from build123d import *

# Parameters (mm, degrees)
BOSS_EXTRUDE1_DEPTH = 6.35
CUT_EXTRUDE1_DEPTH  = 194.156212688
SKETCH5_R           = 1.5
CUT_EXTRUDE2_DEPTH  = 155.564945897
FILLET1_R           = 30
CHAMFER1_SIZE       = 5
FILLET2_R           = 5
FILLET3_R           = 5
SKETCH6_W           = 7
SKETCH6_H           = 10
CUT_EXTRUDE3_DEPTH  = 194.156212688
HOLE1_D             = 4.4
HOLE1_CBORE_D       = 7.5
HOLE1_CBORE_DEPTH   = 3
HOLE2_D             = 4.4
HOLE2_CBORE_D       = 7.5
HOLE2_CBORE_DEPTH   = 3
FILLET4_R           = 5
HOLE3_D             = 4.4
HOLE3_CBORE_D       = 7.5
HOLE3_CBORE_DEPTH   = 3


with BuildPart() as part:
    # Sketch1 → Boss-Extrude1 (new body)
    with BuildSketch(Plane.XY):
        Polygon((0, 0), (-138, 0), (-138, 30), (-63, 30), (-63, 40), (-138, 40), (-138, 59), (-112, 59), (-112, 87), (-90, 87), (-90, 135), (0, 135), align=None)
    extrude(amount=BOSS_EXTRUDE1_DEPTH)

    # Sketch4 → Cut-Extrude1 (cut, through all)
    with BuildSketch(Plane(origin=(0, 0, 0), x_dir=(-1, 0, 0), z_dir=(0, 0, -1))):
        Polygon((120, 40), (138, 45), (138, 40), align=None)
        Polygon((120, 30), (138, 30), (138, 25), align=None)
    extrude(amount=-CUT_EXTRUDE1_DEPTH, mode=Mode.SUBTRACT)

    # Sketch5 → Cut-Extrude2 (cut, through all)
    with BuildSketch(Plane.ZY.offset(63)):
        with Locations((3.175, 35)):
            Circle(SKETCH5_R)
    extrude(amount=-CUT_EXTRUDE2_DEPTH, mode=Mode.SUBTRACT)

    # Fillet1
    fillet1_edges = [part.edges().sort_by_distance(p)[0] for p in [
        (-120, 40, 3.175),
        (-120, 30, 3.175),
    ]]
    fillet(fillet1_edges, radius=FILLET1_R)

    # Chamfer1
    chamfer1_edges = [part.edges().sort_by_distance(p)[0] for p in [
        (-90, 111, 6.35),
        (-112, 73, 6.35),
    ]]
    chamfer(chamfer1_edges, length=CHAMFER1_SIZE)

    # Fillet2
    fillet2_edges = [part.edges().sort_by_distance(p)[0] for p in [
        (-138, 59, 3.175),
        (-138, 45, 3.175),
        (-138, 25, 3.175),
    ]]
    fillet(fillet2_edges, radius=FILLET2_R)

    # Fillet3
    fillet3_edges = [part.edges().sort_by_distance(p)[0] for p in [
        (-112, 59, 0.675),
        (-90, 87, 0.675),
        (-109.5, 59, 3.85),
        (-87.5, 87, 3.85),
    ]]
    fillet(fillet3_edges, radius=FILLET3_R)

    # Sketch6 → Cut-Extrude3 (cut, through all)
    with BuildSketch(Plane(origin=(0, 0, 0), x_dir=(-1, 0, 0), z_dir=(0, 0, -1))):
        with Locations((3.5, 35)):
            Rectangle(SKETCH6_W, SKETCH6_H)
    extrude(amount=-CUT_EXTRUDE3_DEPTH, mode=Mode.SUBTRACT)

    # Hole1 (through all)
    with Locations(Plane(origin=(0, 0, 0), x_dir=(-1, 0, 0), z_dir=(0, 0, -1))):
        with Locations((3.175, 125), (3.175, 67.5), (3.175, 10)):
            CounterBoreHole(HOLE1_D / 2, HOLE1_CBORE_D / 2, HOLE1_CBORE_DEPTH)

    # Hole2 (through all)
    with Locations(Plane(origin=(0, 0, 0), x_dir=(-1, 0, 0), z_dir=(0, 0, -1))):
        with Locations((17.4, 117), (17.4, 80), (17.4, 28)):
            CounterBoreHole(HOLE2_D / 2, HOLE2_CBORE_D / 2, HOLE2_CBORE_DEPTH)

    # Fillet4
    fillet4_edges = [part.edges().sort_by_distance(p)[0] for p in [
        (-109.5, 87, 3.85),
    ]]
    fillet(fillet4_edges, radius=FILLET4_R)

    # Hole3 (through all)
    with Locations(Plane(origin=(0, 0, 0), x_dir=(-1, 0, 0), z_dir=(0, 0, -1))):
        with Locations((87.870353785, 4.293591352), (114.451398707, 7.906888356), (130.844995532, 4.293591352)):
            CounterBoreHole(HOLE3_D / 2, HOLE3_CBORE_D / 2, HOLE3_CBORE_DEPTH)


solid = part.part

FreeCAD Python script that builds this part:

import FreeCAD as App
import Part
import Sketcher
Q = App.Units.Quantity


def edges_at(feature, points):
    """Names of the edges that pass closest to the given points."""
    edges = feature.Shape.Edges
    near = lambda p: min(range(len(edges)), key=lambda i: edges[i].distToShape(Part.Vertex(*p))[0])
    return sorted({f"Edge{near(p) + 1}" for p in points})


def add_polygon(sketch, points):
    """Adds a closed chain of lines whose ends are joined by coincident constraints."""
    first, n = sketch.GeometryCount, len(points)
    for a, b in zip(points, points[1:] + points[:1]):
        sketch.addGeometry(Part.LineSegment(App.Vector(*a, 0), App.Vector(*b, 0)), False)
    for i in range(n):
        sketch.addConstraint(Sketcher.Constraint("Coincident", first + i, 2, first + (i + 1) % n, 1))

doc = App.newDocument("Part")
params = doc.addObject("Spreadsheet::Sheet", "Params")
for row, (alias, value) in enumerate([
    ("sketch1_width", "138 mm"),
    ("sketch1_width2", "90 mm"),
    ("sketch1_width3", "22 mm"),
    ("sketch1_width4", "75 mm"),
    ("sketch1_height", "135 mm"),
    ("pad1_length", "6.35 mm"),
    ("sketch2_width", "18 mm"),
    ("sketch2_height", "5 mm"),
    ("sketch3_diameter", "3 mm"),
    ("fillet_radius", "30 mm"),
    ("chamfer_size", "5 mm"),
    ("fillet2_radius", "5 mm"),
    ("fillet3_radius", "5 mm"),
    ("sketch4_width", "7 mm"),
    ("sketch4_height", "10 mm"),
    ("sketch5_diameter", "4.4 mm"),
    ("hole_diameter", "4.4 mm"),
    ("hole_cbore_diameter", "7.5 mm"),
    ("hole_cbore_depth", "3 mm"),
    ("sketch6_diameter", "4.4 mm"),
    ("hole2_diameter", "4.4 mm"),
    ("hole2_cbore_diameter", "7.5 mm"),
    ("hole2_cbore_depth", "3 mm"),
    ("fillet4_radius", "5 mm"),
    ("sketch7_diameter", "4.4 mm"),
    ("hole3_diameter", "4.4 mm"),
    ("hole3_cbore_diameter", "7.5 mm"),
    ("hole3_cbore_depth", "3 mm"),
], start=1):
    params.set(f"A{row}", alias)
    params.set(f"B{row}", "=" + value)
    params.setAlias(f"B{row}", alias)

body = doc.addObject("PartDesign::Body", "Body")

sketch1 = body.newObject("Sketcher::SketchObject", "Sketch")
sketch1.AttachmentSupport = (doc.getObject("XY_Plane"), [""])
sketch1.MapMode = "FlatFace"
add_polygon(sketch1, [(-138, 0), (0, 0), (0, 135), (-90, 135), (-90, 87), (-112, 87), (-112, 59), (-138, 59), (-138, 40), (-63, 40), (-63, 30), (-138, 30)])
sketch1.addConstraint([
    Sketcher.Constraint("Horizontal", 0),
    Sketcher.Constraint("Vertical", 1),
    Sketcher.Constraint("Horizontal", 2),
    Sketcher.Constraint("Vertical", 3),
    Sketcher.Constraint("Horizontal", 4),
    Sketcher.Constraint("Vertical", 5),
    Sketcher.Constraint("Horizontal", 6),
    Sketcher.Constraint("Vertical", 7),
    Sketcher.Constraint("Horizontal", 8),
    Sketcher.Constraint("Vertical", 9),
    Sketcher.Constraint("Horizontal", 10),
    Sketcher.Constraint("Vertical", 11),
    Sketcher.Constraint("Coincident", 0, 2, -1, 1),
    Sketcher.Constraint("Vertical", 7, 2, 10, 2),
    Sketcher.Constraint("DistanceX", 0, 1, 0, 2, Q("138 mm")),
    Sketcher.Constraint("DistanceX", 2, 2, 2, 1, Q("90 mm")),
    Sketcher.Constraint("DistanceX", 4, 2, 4, 1, Q("22 mm")),
    Sketcher.Constraint("DistanceX", 8, 1, 8, 2, Q("75 mm")),
    Sketcher.Constraint("DistanceY", 1, 1, 1, 2, Q("135 mm")),
    Sketcher.Constraint("DistanceY", 3, 2, 3, 1, Q("48 mm")),
    Sketcher.Constraint("DistanceY", 5, 2, 5, 1, Q("28 mm")),
    Sketcher.Constraint("DistanceY", 7, 2, 7, 1, Q("19 mm")),
    Sketcher.Constraint("DistanceY", 9, 2, 9, 1, Q("10 mm")),
])
sketch1.setExpression("Constraints[26]", "Params.sketch1_width")
sketch1.setExpression("Constraints[27]", "Params.sketch1_width2")
sketch1.setExpression("Constraints[28]", "Params.sketch1_width3")
sketch1.setExpression("Constraints[29]", "Params.sketch1_width4")
sketch1.setExpression("Constraints[30]", "Params.sketch1_height")
pad1 = body.newObject("PartDesign::Pad", "Pad")
pad1.Profile = sketch1
pad1.setExpression("Length", "Params.pad1_length")

sketch2 = body.newObject("Sketcher::SketchObject", "Sketch001")
sketch2.AttachmentSupport = (doc.getObject("XY_Plane"), [""])
sketch2.MapMode = "FlatFace"
add_polygon(sketch2, [(-138, 45), (-120, 40), (-138, 40)])
add_polygon(sketch2, [(-138, 30), (-120, 30), (-138, 25)])
sketch2.addConstraint([
    Sketcher.Constraint("Horizontal", 1),
    Sketcher.Constraint("Vertical", 2),
    Sketcher.Constraint("Horizontal", 3),
    Sketcher.Constraint("Vertical", 5),
    Sketcher.Constraint("Vertical", 0, 2, 3, 2),
    Sketcher.Constraint("Vertical", 2, 2, 4, 2),
    Sketcher.Constraint("Equal", 2, 5),
    Sketcher.Constraint("DistanceX", 1, 2, 1, 1, Q("18 mm")),
    Sketcher.Constraint("DistanceY", 2, 1, 2, 2, Q("5 mm")),
    Sketcher.Constraint("DistanceX", 0, 2, -1, 1, Q("120 mm")),
    Sketcher.Constraint("DistanceY", -1, 1, 0, 2, Q("40 mm")),
    Sketcher.Constraint("DistanceY", -1, 1, 3, 2, Q("30 mm")),
])
sketch2.setExpression("Constraints[13]", "Params.sketch2_width")
sketch2.setExpression("Constraints[14]", "Params.sketch2_height")
pocket1 = body.newObject("PartDesign::Pocket", "Pocket")
pocket1.Profile = sketch2
pocket1.Type = "ThroughAll"
pocket1.Reversed = True

sketch3 = body.newObject("Sketcher::SketchObject", "Sketch002")
sketch3.AttachmentSupport = (doc.getObject("YZ_Plane"), [""])
sketch3.MapMode = "FlatFace"
sketch3.AttachmentOffset = App.Placement(App.Vector(0, 0, -63), App.Rotation())
sketch3.addGeometry(Part.Circle(App.Vector(35, 3.175, 0), App.Vector(0, 0, 1), 1.5), False)
sketch3.addConstraint([
    Sketcher.Constraint("Diameter", 0, Q("3 mm")),
    Sketcher.Constraint("DistanceX", -1, 1, 0, 3, Q("35 mm")),
    Sketcher.Constraint("DistanceY", -1, 1, 0, 3, Q("3.175 mm")),
])
sketch3.setExpression("Constraints[0]", "Params.sketch3_diameter")
pocket2 = body.newObject("PartDesign::Pocket", "Pocket001")
pocket2.Profile = sketch3
pocket2.Type = "ThroughAll"
pocket2.Reversed = True
doc.recompute()

fillet = body.newObject("PartDesign::Fillet", "Fillet")
fillet.Base = (pocket2, edges_at(pocket2, [(-120, 40, 3.175), (-120, 30, 3.175)]))
fillet.setExpression("Radius", "Params.fillet_radius")
doc.recompute()

chamfer = body.newObject("PartDesign::Chamfer", "Chamfer")
chamfer.Base = (fillet, edges_at(fillet, [(-90, 111, 6.35), (-112, 73, 6.35)]))
chamfer.setExpression("Size", "Params.chamfer_size")
doc.recompute()

fillet2 = body.newObject("PartDesign::Fillet", "Fillet001")
fillet2.Base = (chamfer, edges_at(chamfer, [(-138, 59, 3.175), (-138, 45, 3.175), (-138, 25, 3.175)]))
fillet2.setExpression("Radius", "Params.fillet2_radius")
doc.recompute()

fillet3 = body.newObject("PartDesign::Fillet", "Fillet002")
fillet3.Base = (fillet2, edges_at(fillet2, [
    (-112, 59, 0.675),
    (-90, 87, 0.675),
    (-109.5, 59, 3.85),
    (-87.5, 87, 3.85),
]))
fillet3.setExpression("Radius", "Params.fillet3_radius")

sketch4 = body.newObject("Sketcher::SketchObject", "Sketch003")
sketch4.AttachmentSupport = (doc.getObject("XY_Plane"), [""])
sketch4.MapMode = "FlatFace"
add_polygon(sketch4, [(0, 40), (0, 30), (-7, 30), (-7, 40)])
sketch4.addConstraint([
    Sketcher.Constraint("Vertical", 0),
    Sketcher.Constraint("Horizontal", 1),
    Sketcher.Constraint("Vertical", 2),
    Sketcher.Constraint("Horizontal", 3),
    Sketcher.Constraint("PointOnObject", 0, 2, -2),
    Sketcher.Constraint("DistanceX", 1, 2, 1, 1, Q("7 mm")),
    Sketcher.Constraint("DistanceY", 0, 2, 0, 1, Q("10 mm")),
    Sketcher.Constraint("DistanceY", -1, 1, 0, 2, Q("30 mm")),
])
sketch4.setExpression("Constraints[9]", "Params.sketch4_width")
sketch4.setExpression("Constraints[10]", "Params.sketch4_height")
pocket3 = body.newObject("PartDesign::Pocket", "Pocket002")
pocket3.Profile = sketch4
pocket3.Type = "ThroughAll"
pocket3.Reversed = True

sketch5 = body.newObject("Sketcher::SketchObject", "Sketch004")
sketch5.AttachmentSupport = (doc.getObject("XY_Plane"), [""])
sketch5.MapMode = "FlatFace"
sketch5.addGeometry([
    Part.Circle(App.Vector(-3.175, 125, 0), App.Vector(0, 0, 1), 2.2),
    Part.Circle(App.Vector(-3.175, 67.5, 0), App.Vector(0, 0, 1), 2.2),
    Part.Circle(App.Vector(-3.175, 10, 0), App.Vector(0, 0, 1), 2.2),
], False)
sketch5.addConstraint([
    Sketcher.Constraint("Equal", 0, 1),
    Sketcher.Constraint("Equal", 1, 2),
    Sketcher.Constraint("Vertical", 0, 3, 1, 3),
    Sketcher.Constraint("Vertical", 1, 3, 2, 3),
    Sketcher.Constraint("Diameter", 0, Q("4.4 mm")),
    Sketcher.Constraint("DistanceY", -1, 1, 0, 3, Q("125 mm")),
    Sketcher.Constraint("DistanceY", -1, 1, 2, 3, Q("10 mm")),
    Sketcher.Constraint("DistanceY", -1, 1, 1, 3, Q("67.5 mm")),
    Sketcher.Constraint("DistanceX", 0, 3, -1, 1, Q("3.175 mm")),
])
sketch5.setExpression("Constraints[4]", "Params.sketch5_diameter")
doc.recompute()
hole = body.newObject("PartDesign::Hole", "Hole")
hole.Profile = sketch5
hole.ThreadType = "None"
hole.setExpression("Diameter", "Params.hole_diameter")
hole.DepthType = "ThroughAll"
hole.HoleCutType = "Counterbore"
hole.setExpression("HoleCutDiameter", "Params.hole_cbore_diameter")
hole.setExpression("HoleCutDepth", "Params.hole_cbore_depth")
hole.Reversed = True

sketch6 = body.newObject("Sketcher::SketchObject", "Sketch005")
sketch6.AttachmentSupport = (doc.getObject("XY_Plane"), [""])
sketch6.MapMode = "FlatFace"
sketch6.addGeometry([
    Part.Circle(App.Vector(-17.4, 117, 0), App.Vector(0, 0, 1), 2.2),
    Part.Circle(App.Vector(-17.4, 80, 0), App.Vector(0, 0, 1), 2.2),
    Part.Circle(App.Vector(-17.4, 28, 0), App.Vector(0, 0, 1), 2.2),
], False)
sketch6.addConstraint([
    Sketcher.Constraint("Equal", 0, 1),
    Sketcher.Constraint("Equal", 1, 2),
    Sketcher.Constraint("Vertical", 0, 3, 1, 3),
    Sketcher.Constraint("Vertical", 1, 3, 2, 3),
    Sketcher.Constraint("Diameter", 0, Q("4.4 mm")),
    Sketcher.Constraint("DistanceY", -1, 1, 0, 3, Q("117 mm")),
    Sketcher.Constraint("DistanceY", -1, 1, 1, 3, Q("80 mm")),
    Sketcher.Constraint("DistanceY", -1, 1, 2, 3, Q("28 mm")),
    Sketcher.Constraint("DistanceX", 0, 3, -1, 1, Q("17.4 mm")),
])
sketch6.setExpression("Constraints[4]", "Params.sketch6_diameter")
doc.recompute()
hole2 = body.newObject("PartDesign::Hole", "Hole001")
hole2.Profile = sketch6
hole2.ThreadType = "None"
hole2.setExpression("Diameter", "Params.hole2_diameter")
hole2.DepthType = "ThroughAll"
hole2.HoleCutType = "Counterbore"
hole2.setExpression("HoleCutDiameter", "Params.hole2_cbore_diameter")
hole2.setExpression("HoleCutDepth", "Params.hole2_cbore_depth")
hole2.Reversed = True
doc.recompute()

fillet4 = body.newObject("PartDesign::Fillet", "Fillet003")
fillet4.Base = (hole2, edges_at(hole2, [(-109.5, 87, 3.85)]))
fillet4.setExpression("Radius", "Params.fillet4_radius")

sketch7 = body.newObject("Sketcher::SketchObject", "Sketch006")
sketch7.AttachmentSupport = (doc.getObject("XY_Plane"), [""])
sketch7.MapMode = "FlatFace"
sketch7.addGeometry([
    Part.Circle(App.Vector(-87.870354, 4.293591, 0), App.Vector(0, 0, 1), 2.2),
    Part.Circle(App.Vector(-114.451399, 7.906888, 0), App.Vector(0, 0, 1), 2.2),
    Part.Circle(App.Vector(-130.844996, 4.293591, 0), App.Vector(0, 0, 1), 2.2),
], False)
sketch7.addConstraint([
    Sketcher.Constraint("Equal", 0, 1),
    Sketcher.Constraint("Equal", 1, 2),
    Sketcher.Constraint("Horizontal", 0, 3, 2, 3),
    Sketcher.Constraint("Diameter", 0, Q("4.4 mm")),
    Sketcher.Constraint("DistanceX", 1, 3, -1, 1, Q("114.451399 mm")),
    Sketcher.Constraint("DistanceY", -1, 1, 0, 3, Q("4.293591 mm")),
    Sketcher.Constraint("DistanceY", -1, 1, 1, 3, Q("7.906888 mm")),
    Sketcher.Constraint("DistanceX", 2, 3, 0, 3, Q("42.974642 mm")),
    Sketcher.Constraint("DistanceX", 0, 3, -1, 1, Q("87.870354 mm")),
])
sketch7.setExpression("Constraints[3]", "Params.sketch7_diameter")
doc.recompute()
hole3 = body.newObject("PartDesign::Hole", "Hole002")
hole3.Profile = sketch7
hole3.ThreadType = "None"
hole3.setExpression("Diameter", "Params.hole3_diameter")
hole3.DepthType = "ThroughAll"
hole3.HoleCutType = "Counterbore"
hole3.setExpression("HoleCutDiameter", "Params.hole3_cbore_diameter")
hole3.setExpression("HoleCutDepth", "Params.hole3_cbore_depth")
hole3.Reversed = True

doc.recompute()
